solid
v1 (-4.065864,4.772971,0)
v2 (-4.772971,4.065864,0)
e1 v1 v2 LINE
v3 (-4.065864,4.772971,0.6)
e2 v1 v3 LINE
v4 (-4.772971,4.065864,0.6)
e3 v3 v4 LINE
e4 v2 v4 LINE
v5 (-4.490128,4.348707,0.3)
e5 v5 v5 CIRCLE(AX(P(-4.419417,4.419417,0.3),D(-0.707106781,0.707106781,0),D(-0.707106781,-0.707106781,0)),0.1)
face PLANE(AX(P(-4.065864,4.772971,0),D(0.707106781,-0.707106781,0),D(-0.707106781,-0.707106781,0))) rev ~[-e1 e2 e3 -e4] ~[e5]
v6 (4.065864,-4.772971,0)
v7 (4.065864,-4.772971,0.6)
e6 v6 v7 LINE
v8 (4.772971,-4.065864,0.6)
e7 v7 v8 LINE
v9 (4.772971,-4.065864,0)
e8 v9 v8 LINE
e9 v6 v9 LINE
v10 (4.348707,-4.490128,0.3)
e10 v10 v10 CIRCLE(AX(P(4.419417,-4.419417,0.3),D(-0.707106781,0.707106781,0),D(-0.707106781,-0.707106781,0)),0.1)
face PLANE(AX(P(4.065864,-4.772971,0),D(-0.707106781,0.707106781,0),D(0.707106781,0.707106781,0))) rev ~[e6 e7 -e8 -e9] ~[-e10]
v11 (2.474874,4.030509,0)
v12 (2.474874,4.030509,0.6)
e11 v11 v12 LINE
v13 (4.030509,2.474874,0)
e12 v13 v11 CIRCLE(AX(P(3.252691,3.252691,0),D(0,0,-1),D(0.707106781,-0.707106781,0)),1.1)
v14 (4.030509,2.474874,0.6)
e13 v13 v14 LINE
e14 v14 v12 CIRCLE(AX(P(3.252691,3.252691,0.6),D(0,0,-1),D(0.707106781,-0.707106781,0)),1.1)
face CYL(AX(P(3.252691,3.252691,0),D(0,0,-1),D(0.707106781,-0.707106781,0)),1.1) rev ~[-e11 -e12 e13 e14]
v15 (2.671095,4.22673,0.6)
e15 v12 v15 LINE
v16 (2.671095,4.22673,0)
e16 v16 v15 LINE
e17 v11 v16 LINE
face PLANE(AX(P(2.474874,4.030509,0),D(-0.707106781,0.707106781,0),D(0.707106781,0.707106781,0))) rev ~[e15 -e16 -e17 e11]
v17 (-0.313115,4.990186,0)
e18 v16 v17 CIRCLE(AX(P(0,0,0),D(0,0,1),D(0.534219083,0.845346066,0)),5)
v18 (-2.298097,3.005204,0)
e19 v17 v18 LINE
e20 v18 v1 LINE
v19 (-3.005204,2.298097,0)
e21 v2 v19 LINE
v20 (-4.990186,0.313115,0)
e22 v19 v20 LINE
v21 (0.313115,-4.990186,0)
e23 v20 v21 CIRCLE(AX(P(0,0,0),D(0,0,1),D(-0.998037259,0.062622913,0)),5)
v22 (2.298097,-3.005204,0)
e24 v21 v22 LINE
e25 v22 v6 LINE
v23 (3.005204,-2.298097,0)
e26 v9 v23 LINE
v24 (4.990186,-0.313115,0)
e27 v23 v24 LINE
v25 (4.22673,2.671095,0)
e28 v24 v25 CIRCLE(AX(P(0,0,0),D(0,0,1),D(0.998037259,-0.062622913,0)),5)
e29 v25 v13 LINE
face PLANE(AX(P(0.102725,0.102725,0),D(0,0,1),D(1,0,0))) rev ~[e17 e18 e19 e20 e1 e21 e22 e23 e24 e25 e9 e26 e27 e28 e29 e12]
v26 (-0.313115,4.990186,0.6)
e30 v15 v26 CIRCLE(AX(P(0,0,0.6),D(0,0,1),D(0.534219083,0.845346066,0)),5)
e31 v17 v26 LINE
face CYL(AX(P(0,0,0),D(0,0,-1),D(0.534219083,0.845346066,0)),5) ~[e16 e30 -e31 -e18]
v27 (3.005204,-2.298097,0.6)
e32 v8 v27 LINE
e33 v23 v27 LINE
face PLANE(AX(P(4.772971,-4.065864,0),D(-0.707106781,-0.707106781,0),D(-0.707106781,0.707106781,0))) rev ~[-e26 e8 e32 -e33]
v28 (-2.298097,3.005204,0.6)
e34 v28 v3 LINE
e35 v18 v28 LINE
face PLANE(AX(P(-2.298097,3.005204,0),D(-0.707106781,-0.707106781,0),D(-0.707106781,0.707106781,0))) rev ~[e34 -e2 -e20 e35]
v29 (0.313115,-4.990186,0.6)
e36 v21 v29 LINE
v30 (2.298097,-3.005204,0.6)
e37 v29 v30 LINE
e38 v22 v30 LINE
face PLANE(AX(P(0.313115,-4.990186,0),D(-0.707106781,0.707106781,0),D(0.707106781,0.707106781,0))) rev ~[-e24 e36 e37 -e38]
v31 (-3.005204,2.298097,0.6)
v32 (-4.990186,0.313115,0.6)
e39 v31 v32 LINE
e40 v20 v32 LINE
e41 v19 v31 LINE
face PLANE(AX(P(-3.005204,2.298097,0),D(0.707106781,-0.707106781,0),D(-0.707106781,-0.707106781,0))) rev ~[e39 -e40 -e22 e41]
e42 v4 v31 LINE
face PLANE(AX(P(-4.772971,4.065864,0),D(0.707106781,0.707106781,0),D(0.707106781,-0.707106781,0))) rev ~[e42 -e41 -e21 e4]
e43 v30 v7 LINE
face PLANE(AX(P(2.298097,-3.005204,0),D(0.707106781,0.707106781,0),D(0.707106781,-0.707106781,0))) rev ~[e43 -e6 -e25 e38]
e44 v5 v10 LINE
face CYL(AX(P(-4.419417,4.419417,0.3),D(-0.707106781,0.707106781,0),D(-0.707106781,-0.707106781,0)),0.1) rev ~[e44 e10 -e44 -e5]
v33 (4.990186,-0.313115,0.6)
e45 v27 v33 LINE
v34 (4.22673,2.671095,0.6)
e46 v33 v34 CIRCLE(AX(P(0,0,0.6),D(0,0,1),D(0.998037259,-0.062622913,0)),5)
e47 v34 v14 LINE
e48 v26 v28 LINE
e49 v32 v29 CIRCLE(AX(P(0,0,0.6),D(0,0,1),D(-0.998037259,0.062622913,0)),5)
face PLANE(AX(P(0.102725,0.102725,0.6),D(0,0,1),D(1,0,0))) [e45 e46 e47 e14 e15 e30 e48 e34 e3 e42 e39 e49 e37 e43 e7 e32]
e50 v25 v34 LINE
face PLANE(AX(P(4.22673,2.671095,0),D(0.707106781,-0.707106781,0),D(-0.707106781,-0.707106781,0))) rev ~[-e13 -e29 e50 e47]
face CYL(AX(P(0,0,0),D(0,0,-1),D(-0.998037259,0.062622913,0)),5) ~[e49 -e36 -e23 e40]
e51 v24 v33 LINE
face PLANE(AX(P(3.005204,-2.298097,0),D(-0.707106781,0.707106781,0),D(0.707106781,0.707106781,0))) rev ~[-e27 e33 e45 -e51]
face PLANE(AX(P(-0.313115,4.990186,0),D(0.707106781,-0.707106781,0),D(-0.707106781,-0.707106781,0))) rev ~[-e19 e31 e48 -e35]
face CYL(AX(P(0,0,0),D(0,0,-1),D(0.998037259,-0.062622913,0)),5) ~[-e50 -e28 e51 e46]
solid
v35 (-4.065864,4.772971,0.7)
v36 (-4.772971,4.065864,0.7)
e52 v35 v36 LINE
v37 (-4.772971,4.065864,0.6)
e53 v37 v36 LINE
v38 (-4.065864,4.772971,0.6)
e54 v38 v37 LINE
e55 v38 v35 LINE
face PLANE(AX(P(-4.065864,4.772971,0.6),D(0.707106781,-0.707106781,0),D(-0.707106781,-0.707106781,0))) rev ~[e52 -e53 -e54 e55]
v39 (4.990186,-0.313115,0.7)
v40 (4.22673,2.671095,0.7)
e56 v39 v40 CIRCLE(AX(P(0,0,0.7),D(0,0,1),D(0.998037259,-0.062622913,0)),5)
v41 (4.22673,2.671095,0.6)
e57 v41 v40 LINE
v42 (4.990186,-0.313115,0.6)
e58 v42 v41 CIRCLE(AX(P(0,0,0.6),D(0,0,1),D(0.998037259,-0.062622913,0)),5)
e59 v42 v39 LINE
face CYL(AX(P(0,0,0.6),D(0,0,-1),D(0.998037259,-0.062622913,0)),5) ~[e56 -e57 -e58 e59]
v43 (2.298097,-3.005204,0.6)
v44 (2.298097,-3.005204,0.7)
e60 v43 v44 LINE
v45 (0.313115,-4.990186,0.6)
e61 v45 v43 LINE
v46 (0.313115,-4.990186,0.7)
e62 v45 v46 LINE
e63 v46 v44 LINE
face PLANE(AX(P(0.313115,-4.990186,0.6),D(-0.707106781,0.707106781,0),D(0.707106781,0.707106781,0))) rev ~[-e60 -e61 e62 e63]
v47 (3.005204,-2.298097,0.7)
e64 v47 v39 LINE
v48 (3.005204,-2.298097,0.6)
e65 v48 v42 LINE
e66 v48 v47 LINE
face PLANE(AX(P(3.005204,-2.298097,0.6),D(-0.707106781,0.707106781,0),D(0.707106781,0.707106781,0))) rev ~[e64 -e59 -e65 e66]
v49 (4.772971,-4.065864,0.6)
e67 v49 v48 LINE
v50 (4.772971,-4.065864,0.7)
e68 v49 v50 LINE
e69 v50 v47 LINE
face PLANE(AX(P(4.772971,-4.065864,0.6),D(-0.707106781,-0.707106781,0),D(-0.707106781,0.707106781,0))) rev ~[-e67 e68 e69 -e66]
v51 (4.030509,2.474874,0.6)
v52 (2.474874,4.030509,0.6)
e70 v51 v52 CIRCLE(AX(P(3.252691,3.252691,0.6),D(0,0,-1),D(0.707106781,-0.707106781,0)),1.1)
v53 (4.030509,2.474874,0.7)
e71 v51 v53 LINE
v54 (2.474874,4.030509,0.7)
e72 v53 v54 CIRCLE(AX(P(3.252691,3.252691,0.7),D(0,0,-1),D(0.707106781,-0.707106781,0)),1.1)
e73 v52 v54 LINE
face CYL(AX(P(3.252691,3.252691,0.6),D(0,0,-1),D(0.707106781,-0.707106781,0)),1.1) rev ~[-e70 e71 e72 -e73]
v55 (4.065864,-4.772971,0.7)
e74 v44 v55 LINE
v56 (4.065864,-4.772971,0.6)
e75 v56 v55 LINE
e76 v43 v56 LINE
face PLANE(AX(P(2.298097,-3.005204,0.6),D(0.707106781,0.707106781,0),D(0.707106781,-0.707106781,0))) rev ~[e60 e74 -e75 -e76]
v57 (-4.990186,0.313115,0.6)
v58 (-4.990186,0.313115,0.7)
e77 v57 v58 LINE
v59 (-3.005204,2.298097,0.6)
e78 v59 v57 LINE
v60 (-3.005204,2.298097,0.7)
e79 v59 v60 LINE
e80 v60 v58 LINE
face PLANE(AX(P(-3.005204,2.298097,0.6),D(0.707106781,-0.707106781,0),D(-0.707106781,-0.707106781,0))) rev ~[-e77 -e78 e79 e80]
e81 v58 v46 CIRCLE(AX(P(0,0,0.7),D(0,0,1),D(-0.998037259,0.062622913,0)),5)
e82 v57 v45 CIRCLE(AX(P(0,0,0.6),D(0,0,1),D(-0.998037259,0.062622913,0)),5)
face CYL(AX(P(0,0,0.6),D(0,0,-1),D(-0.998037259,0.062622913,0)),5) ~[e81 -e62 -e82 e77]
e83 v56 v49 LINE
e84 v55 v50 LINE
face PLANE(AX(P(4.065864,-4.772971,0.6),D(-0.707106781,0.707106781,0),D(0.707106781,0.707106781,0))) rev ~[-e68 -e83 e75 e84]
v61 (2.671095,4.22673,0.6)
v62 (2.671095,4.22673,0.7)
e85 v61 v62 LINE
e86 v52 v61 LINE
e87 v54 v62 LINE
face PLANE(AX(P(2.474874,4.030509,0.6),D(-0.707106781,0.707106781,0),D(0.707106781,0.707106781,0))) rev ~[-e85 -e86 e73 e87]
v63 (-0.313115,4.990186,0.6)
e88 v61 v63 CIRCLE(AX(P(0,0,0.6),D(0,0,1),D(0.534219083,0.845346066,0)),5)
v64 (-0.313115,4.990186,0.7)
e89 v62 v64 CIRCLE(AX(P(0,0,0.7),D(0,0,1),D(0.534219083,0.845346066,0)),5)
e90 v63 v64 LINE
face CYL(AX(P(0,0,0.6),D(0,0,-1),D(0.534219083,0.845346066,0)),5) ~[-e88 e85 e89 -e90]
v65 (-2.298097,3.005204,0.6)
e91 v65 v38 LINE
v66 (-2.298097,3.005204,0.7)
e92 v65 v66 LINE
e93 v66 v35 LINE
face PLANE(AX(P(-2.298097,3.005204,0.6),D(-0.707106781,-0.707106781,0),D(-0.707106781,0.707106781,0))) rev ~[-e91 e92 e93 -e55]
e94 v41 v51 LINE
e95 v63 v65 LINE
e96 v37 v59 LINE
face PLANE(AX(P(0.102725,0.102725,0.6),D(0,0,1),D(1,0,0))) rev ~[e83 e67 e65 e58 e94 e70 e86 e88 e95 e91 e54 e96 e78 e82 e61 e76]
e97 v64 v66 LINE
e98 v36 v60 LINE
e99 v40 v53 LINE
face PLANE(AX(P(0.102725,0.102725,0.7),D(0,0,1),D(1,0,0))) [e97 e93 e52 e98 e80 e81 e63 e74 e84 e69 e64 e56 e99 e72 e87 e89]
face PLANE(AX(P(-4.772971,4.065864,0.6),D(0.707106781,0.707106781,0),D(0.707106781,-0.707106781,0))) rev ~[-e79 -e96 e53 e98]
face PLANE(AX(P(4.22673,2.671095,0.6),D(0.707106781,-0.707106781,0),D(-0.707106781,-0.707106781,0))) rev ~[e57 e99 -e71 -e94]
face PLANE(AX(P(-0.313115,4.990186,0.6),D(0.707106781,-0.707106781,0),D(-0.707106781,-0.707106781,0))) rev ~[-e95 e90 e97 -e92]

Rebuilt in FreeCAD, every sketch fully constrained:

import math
import FreeCAD as App
import Part
import Sketcher
from FreeCAD import Vector
Q = App.Units.Quantity

doc = App.newDocument("Part")
params = doc.addObject("Spreadsheet::Sheet", "Params")
for row, (alias, value) in enumerate([
    ("sketch1_radius", "5 mm"),
    ("sketch1_radius2", "1.1 mm"),
    ("sketch1_length", "1 mm"),
    ("sketch1_length2", "2.5 mm"),
    ("pad1_length", "0.6 mm"),
    ("sketch2_diameter", "0.2 mm"),
    ("sketch3_radius", "5 mm"),
    ("sketch3_radius2", "1.1 mm"),
    ("sketch3_length", "1 mm"),
    ("sketch3_length2", "2.5 mm"),
    ("pad2_length", "0.1 mm"),
], start=1):
    params.set(f"A{row}", alias)
    params.set(f"B{row}", "=" + value)
    params.setAlias(f"B{row}", alias)

body = doc.addObject("PartDesign::Body", "Body")

sketch1 = body.newObject("Sketcher::SketchObject", "Sketch")
sketch1.AttachmentSupport = (doc.getObject("XY_Plane"), [""])
sketch1.MapMode = "FlatFace"
sketch1.addGeometry(Part.LineSegment(Vector(-3.01, 2.3, 0), Vector(-4.99, 0.31, 0)), False)
sketch1.addGeometry(Part.ArcOfCircle(Part.Circle(Vector(0, 0, 0), Vector(0, 0, 1), 5), math.radians(176), math.radians(274)), False)
sketch1.addGeometry(Part.LineSegment(Vector(0.31, -4.99, 0), Vector(2.3, -3.01, 0)), False)
sketch1.addGeometry(Part.LineSegment(Vector(2.3, -3.01, 0), Vector(4.07, -4.77, 0)), False)
sketch1.addGeometry(Part.LineSegment(Vector(4.07, -4.77, 0), Vector(4.77, -4.07, 0)), False)
sketch1.addGeometry(Part.LineSegment(Vector(4.77, -4.07, 0), Vector(3.01, -2.3, 0)), False)
sketch1.addGeometry(Part.LineSegment(Vector(3.01, -2.3, 0), Vector(4.99, -0.31, 0)), False)
sketch1.addGeometry(Part.ArcOfCircle(Part.Circle(Vector(0, 0, 0), Vector(0, 0, 1), 5), math.radians(-4), math.radians(32)), False)
sketch1.addGeometry(Part.LineSegment(Vector(4.23, 2.67, 0), Vector(4.03, 2.47, 0)), False)
sketch1.addGeometry(Part.ArcOfCircle(Part.Circle(Vector(3.25, 3.25, 0), Vector(0, 0, 1), 1.1), math.radians(135), math.radians(315)), False)
sketch1.addGeometry(Part.LineSegment(Vector(2.47, 4.03, 0), Vector(2.67, 4.23, 0)), False)
sketch1.addGeometry(Part.ArcOfCircle(Part.Circle(Vector(0, 0, 0), Vector(0, 0, 1), 5), math.radians(58), math.radians(94)), False)
sketch1.addGeometry(Part.LineSegment(Vector(-0.31, 4.99, 0), Vector(-2.3, 3.01, 0)), False)
sketch1.addGeometry(Part.LineSegment(Vector(-2.3, 3.01, 0), Vector(-4.07, 4.77, 0)), False)
sketch1.addGeometry(Part.LineSegment(Vector(-4.07, 4.77, 0), Vector(-4.77, 4.07, 0)), False)
sketch1.addGeometry(Part.LineSegment(Vector(-4.77, 4.07, 0), Vector(-3.01, 2.3, 0)), False)
sketch1.addConstraint(Sketcher.Constraint("Coincident", 0, 2, 1, 1))
sketch1.addConstraint(Sketcher.Constraint("Coincident", 1, 2, 2, 1))
sketch1.addConstraint(Sketcher.Constraint("Coincident", 2, 2, 3, 1))
sketch1.addConstraint(Sketcher.Constraint("Coincident", 3, 2, 4, 1))
sketch1.addConstraint(Sketcher.Constraint("Coincident", 4, 2, 5, 1))
sketch1.addConstraint(Sketcher.Constraint("Coincident", 5, 2, 6, 1))
sketch1.addConstraint(Sketcher.Constraint("Coincident", 6, 2, 7, 1))
sketch1.addConstraint(Sketcher.Constraint("Coincident", 7, 2, 8, 1))
sketch1.addConstraint(Sketcher.Constraint("Tangent", 8, 2, 9, 2))
sketch1.addConstraint(Sketcher.Constraint("Tangent", 9, 1, 10, 1))
sketch1.addConstraint(Sketcher.Constraint("Coincident", 10, 2, 11, 1))
sketch1.addConstraint(Sketcher.Constraint("Coincident", 11, 2, 12, 1))
sketch1.addConstraint(Sketcher.Constraint("Coincident", 12, 2, 13, 1))
sketch1.addConstraint(Sketcher.Constraint("Coincident", 13, 2, 14, 1))
sketch1.addConstraint(Sketcher.Constraint("Coincident", 14, 2, 15, 1))
sketch1.addConstraint(Sketcher.Constraint("Coincident", 15, 2, 0, 1))
sketch1.addConstraint(Sketcher.Constraint("Coincident", 1, 3, -1, 1))
sketch1.addConstraint(Sketcher.Constraint("Coincident", 7, 3, -1, 1))
sketch1.addConstraint(Sketcher.Constraint("Coincident", 11, 3, -1, 1))
sketch1.addConstraint(Sketcher.Constraint("Equal", 1, 7))
sketch1.addConstraint(Sketcher.Constraint("Equal", 7, 11))
sketch1.addConstraint(Sketcher.Constraint("Symmetric", 2, 2, 12, 2, -1, 1))
sketch1.addConstraint(Sketcher.Constraint("Symmetric", 3, 2, 13, 2, -1, 1))
sketch1.addConstraint(Sketcher.Constraint("Symmetric", 4, 2, 14, 2, -1, 1))
sketch1.addConstraint(Sketcher.Constraint("Symmetric", 5, 2, 15, 2, -1, 1))
sketch1.addConstraint(Sketcher.Constraint("Parallel", 0, 2))
sketch1.addConstraint(Sketcher.Constraint("Perpendicular", 2, 3))
sketch1.addConstraint(Sketcher.Constraint("Perpendicular", 3, 4))
sketch1.addConstraint(Sketcher.Constraint("Perpendicular", 4, 5))
sketch1.addConstraint(Sketcher.Constraint("Perpendicular", 5, 6))
sketch1.addConstraint(Sketcher.Constraint("Parallel", 6, 8))
sketch1.addConstraint(Sketcher.Constraint("Parallel", 8, 10))
sketch1.addConstraint(Sketcher.Constraint("Parallel", 10, 12))
sketch1.addConstraint(Sketcher.Constraint("Equal", 0, 2))
sketch1.addConstraint(Sketcher.Constraint("Equal", 3, 5))
sketch1.addConstraint(Sketcher.Constraint("Equal", 8, 10))
sketch1.addConstraint(Sketcher.Constraint("Radius", 1, Q("5 mm")))
sketch1.addConstraint(Sketcher.Constraint("Radius", 9, Q("1.1 mm")))
sketch1.addConstraint(Sketcher.Constraint("Angle", 0, Q("-135 deg")))
sketch1.addConstraint(Sketcher.Constraint("Distance", 4, Q("1 mm")))
sketch1.addConstraint(Sketcher.Constraint("Distance", 3, Q("2.5 mm")))
sketch1.addConstraint(Sketcher.Constraint("Distance", 8, Q("0.277499 mm")))
sketch1.addConstraint(Sketcher.Constraint("DistanceX", 0, 2, 1, 2, Q("5.303301 mm")))
sketch1.setExpression("Constraints[36]", "Params.sketch1_radius")
sketch1.setExpression("Constraints[37]", "Params.sketch1_radius2")
sketch1.setExpression("Constraints[39]", "Params.sketch1_length")
sketch1.setExpression("Constraints[40]", "Params.sketch1_length2")
pad1 = body.newObject("PartDesign::Pad", "Pad")
pad1.Profile = sketch1
pad1.setExpression("Length", "Params.pad1_length")

sketch2 = body.newObject("Sketcher::SketchObject", "Sketch001")
sketch2.Placement = App.Placement(Vector(-4.419417, 4.419417, 0), App.Rotation(Vector(-0.707106781, -0.707106781, 0), Vector(0, 0, 0.999999999), Vector(-0.707106781, 0.707106781, 0), "ZXY"))
sketch2.addGeometry(Part.Circle(Vector(0, 0.3, 0), Vector(0, 0, 1), 0.1), False)
sketch2.addConstraint(Sketcher.Constraint("PointOnObject", 0, 3, -2))
sketch2.addConstraint(Sketcher.Constraint("Diameter", 0, Q("0.2 mm")))
sketch2.addConstraint(Sketcher.Constraint("DistanceY", -1, 1, 0, 3, Q("0.3 mm")))
sketch2.setExpression("Constraints[1]", "Params.sketch2_diameter")
pocket1 = body.newObject("PartDesign::Pocket", "Pocket")
pocket1.Profile = sketch2
pocket1.Type = "ThroughAll"
body2 = doc.addObject("PartDesign::Body", "Body001")

sketch3 = body2.newObject("Sketcher::SketchObject", "Sketch002")
sketch3.AttachmentSupport = (doc.getObject("XY_Plane001"), [""])
sketch3.MapMode = "FlatFace"
sketch3.AttachmentOffset = App.Placement(Vector(0, 0, 0.6), App.Rotation())
sketch3.addGeometry(Part.ArcOfCircle(Part.Circle(Vector(3.25, 3.25, 0), Vector(0, 0, 1), 1.1), math.radians(135), math.radians(315)), False)
sketch3.addGeometry(Part.LineSegment(Vector(2.47, 4.03, 0), Vector(2.67, 4.23, 0)), False)
sketch3.addGeometry(Part.ArcOfCircle(Part.Circle(Vector(0, 0, 0), Vector(0, 0, 1), 5), math.radians(58), math.radians(94)), False)
sketch3.addGeometry(Part.LineSegment(Vector(-0.31, 4.99, 0), Vector(-2.3, 3.01, 0)), False)
sketch3.addGeometry(Part.LineSegment(Vector(-2.3, 3.01, 0), Vector(-4.07, 4.77, 0)), False)
sketch3.addGeometry(Part.LineSegment(Vector(-4.07, 4.77, 0), Vector(-4.77, 4.07, 0)), False)
sketch3.addGeometry(Part.LineSegment(Vector(-4.77, 4.07, 0), Vector(-3.01, 2.3, 0)), False)
sketch3.addGeometry(Part.LineSegment(Vector(-3.01, 2.3, 0), Vector(-4.99, 0.31, 0)), False)
sketch3.addGeometry(Part.ArcOfCircle(Part.Circle(Vector(0, 0, 0), Vector(0, 0, 1), 5), math.radians(176), math.radians(274)), False)
sketch3.addGeometry(Part.LineSegment(Vector(0.31, -4.99, 0), Vector(2.3, -3.01, 0)), False)
sketch3.addGeometry(Part.LineSegment(Vector(2.3, -3.01, 0), Vector(4.07, -4.77, 0)), False)
sketch3.addGeometry(Part.LineSegment(Vector(4.07, -4.77, 0), Vector(4.77, -4.07, 0)), False)
sketch3.addGeometry(Part.LineSegment(Vector(4.77, -4.07, 0), Vector(3.01, -2.3, 0)), False)
sketch3.addGeometry(Part.LineSegment(Vector(3.01, -2.3, 0), Vector(4.99, -0.31, 0)), False)
sketch3.addGeometry(Part.ArcOfCircle(Part.Circle(Vector(0, 0, 0), Vector(0, 0, 1), 5), math.radians(-4), math.radians(32)), False)
sketch3.addGeometry(Part.LineSegment(Vector(4.23, 2.67, 0), Vector(4.03, 2.47, 0)), False)
sketch3.addConstraint(Sketcher.Constraint("Tangent", 0, 1, 1, 1))
sketch3.addConstraint(Sketcher.Constraint("Coincident", 1, 2, 2, 1))
sketch3.addConstraint(Sketcher.Constraint("Coincident", 2, 2, 3, 1))
sketch3.addConstraint(Sketcher.Constraint("Coincident", 3, 2, 4, 1))
sketch3.addConstraint(Sketcher.Constraint("Coincident", 4, 2, 5, 1))
sketch3.addConstraint(Sketcher.Constraint("Coincident", 5, 2, 6, 1))
sketch3.addConstraint(Sketcher.Constraint("Coincident", 6, 2, 7, 1))
sketch3.addConstraint(Sketcher.Constraint("Coincident", 7, 2, 8, 1))
sketch3.addConstraint(Sketcher.Constraint("Coincident", 8, 2, 9, 1))
sketch3.addConstraint(Sketcher.Constraint("Coincident", 9, 2, 10, 1))
sketch3.addConstraint(Sketcher.Constraint("Coincident", 10, 2, 11, 1))
sketch3.addConstraint(Sketcher.Constraint("Coincident", 11, 2, 12, 1))
sketch3.addConstraint(Sketcher.Constraint("Coincident", 12, 2, 13, 1))
sketch3.addConstraint(Sketcher.Constraint("Coincident", 13, 2, 14, 1))
sketch3.addConstraint(Sketcher.Constraint("Coincident", 14, 2, 15, 1))
sketch3.addConstraint(Sketcher.Constraint("Tangent", 15, 2, 0, 2))
sketch3.addConstraint(Sketcher.Constraint("Coincident", 2, 3, -1, 1))
sketch3.addConstraint(Sketcher.Constraint("Coincident", 8, 3, -1, 1))
sketch3.addConstraint(Sketcher.Constraint("Coincident", 14, 3, -1, 1))
sketch3.addConstraint(Sketcher.Constraint("Equal", 2, 8))
sketch3.addConstraint(Sketcher.Constraint("Equal", 8, 14))
sketch3.addConstraint(Sketcher.Constraint("Symmetric", 3, 2, 9, 2, -1, 1))
sketch3.addConstraint(Sketcher.Constraint("Symmetric", 4, 2, 10, 2, -1, 1))
sketch3.addConstraint(Sketcher.Constraint("Symmetric", 5, 2, 11, 2, -1, 1))
sketch3.addConstraint(Sketcher.Constraint("Symmetric", 6, 2, 12, 2, -1, 1))
sketch3.addConstraint(Sketcher.Constraint("Parallel", 1, 3))
sketch3.addConstraint(Sketcher.Constraint("Perpendicular", 3, 4))
sketch3.addConstraint(Sketcher.Constraint("Perpendicular", 4, 5))
sketch3.addConstraint(Sketcher.Constraint("Perpendicular", 5, 6))
sketch3.addConstraint(Sketcher.Constraint("Perpendicular", 6, 7))
sketch3.addConstraint(Sketcher.Constraint("Parallel", 7, 9))
sketch3.addConstraint(Sketcher.Constraint("Perpendicular", 12, 13))
sketch3.addConstraint(Sketcher.Constraint("Parallel", 13, 15))
sketch3.addConstraint(Sketcher.Constraint("Equal", 4, 6))
sketch3.addConstraint(Sketcher.Constraint("Equal", 3, 7))
sketch3.addConstraint(Sketcher.Constraint("Equal", 1, 15))
sketch3.addConstraint(Sketcher.Constraint("Radius", 2, Q("5 mm")))
sketch3.addConstraint(Sketcher.Constraint("Radius", 0, Q("1.1 mm")))
sketch3.addConstraint(Sketcher.Constraint("Angle", 1, Q("45 deg")))
sketch3.addConstraint(Sketcher.Constraint("Distance", 5, Q("1 mm")))
sketch3.addConstraint(Sketcher.Constraint("Distance", 4, Q("2.5 mm")))
sketch3.addConstraint(Sketcher.Constraint("Distance", 1, Q("0.277499 mm")))
sketch3.addConstraint(Sketcher.Constraint("DistanceX", 7, 2, 8, 2, Q("5.303301 mm")))
sketch3.setExpression("Constraints[36]", "Params.sketch3_radius")
sketch3.setExpression("Constraints[37]", "Params.sketch3_radius2")
sketch3.setExpression("Constraints[39]", "Params.sketch3_length")
sketch3.setExpression("Constraints[40]", "Params.sketch3_length2")
pad2 = body2.newObject("PartDesign::Pad", "Pad001")
pad2.Profile = sketch3
pad2.setExpression("Length", "Params.pad2_length")

doc.recompute()
